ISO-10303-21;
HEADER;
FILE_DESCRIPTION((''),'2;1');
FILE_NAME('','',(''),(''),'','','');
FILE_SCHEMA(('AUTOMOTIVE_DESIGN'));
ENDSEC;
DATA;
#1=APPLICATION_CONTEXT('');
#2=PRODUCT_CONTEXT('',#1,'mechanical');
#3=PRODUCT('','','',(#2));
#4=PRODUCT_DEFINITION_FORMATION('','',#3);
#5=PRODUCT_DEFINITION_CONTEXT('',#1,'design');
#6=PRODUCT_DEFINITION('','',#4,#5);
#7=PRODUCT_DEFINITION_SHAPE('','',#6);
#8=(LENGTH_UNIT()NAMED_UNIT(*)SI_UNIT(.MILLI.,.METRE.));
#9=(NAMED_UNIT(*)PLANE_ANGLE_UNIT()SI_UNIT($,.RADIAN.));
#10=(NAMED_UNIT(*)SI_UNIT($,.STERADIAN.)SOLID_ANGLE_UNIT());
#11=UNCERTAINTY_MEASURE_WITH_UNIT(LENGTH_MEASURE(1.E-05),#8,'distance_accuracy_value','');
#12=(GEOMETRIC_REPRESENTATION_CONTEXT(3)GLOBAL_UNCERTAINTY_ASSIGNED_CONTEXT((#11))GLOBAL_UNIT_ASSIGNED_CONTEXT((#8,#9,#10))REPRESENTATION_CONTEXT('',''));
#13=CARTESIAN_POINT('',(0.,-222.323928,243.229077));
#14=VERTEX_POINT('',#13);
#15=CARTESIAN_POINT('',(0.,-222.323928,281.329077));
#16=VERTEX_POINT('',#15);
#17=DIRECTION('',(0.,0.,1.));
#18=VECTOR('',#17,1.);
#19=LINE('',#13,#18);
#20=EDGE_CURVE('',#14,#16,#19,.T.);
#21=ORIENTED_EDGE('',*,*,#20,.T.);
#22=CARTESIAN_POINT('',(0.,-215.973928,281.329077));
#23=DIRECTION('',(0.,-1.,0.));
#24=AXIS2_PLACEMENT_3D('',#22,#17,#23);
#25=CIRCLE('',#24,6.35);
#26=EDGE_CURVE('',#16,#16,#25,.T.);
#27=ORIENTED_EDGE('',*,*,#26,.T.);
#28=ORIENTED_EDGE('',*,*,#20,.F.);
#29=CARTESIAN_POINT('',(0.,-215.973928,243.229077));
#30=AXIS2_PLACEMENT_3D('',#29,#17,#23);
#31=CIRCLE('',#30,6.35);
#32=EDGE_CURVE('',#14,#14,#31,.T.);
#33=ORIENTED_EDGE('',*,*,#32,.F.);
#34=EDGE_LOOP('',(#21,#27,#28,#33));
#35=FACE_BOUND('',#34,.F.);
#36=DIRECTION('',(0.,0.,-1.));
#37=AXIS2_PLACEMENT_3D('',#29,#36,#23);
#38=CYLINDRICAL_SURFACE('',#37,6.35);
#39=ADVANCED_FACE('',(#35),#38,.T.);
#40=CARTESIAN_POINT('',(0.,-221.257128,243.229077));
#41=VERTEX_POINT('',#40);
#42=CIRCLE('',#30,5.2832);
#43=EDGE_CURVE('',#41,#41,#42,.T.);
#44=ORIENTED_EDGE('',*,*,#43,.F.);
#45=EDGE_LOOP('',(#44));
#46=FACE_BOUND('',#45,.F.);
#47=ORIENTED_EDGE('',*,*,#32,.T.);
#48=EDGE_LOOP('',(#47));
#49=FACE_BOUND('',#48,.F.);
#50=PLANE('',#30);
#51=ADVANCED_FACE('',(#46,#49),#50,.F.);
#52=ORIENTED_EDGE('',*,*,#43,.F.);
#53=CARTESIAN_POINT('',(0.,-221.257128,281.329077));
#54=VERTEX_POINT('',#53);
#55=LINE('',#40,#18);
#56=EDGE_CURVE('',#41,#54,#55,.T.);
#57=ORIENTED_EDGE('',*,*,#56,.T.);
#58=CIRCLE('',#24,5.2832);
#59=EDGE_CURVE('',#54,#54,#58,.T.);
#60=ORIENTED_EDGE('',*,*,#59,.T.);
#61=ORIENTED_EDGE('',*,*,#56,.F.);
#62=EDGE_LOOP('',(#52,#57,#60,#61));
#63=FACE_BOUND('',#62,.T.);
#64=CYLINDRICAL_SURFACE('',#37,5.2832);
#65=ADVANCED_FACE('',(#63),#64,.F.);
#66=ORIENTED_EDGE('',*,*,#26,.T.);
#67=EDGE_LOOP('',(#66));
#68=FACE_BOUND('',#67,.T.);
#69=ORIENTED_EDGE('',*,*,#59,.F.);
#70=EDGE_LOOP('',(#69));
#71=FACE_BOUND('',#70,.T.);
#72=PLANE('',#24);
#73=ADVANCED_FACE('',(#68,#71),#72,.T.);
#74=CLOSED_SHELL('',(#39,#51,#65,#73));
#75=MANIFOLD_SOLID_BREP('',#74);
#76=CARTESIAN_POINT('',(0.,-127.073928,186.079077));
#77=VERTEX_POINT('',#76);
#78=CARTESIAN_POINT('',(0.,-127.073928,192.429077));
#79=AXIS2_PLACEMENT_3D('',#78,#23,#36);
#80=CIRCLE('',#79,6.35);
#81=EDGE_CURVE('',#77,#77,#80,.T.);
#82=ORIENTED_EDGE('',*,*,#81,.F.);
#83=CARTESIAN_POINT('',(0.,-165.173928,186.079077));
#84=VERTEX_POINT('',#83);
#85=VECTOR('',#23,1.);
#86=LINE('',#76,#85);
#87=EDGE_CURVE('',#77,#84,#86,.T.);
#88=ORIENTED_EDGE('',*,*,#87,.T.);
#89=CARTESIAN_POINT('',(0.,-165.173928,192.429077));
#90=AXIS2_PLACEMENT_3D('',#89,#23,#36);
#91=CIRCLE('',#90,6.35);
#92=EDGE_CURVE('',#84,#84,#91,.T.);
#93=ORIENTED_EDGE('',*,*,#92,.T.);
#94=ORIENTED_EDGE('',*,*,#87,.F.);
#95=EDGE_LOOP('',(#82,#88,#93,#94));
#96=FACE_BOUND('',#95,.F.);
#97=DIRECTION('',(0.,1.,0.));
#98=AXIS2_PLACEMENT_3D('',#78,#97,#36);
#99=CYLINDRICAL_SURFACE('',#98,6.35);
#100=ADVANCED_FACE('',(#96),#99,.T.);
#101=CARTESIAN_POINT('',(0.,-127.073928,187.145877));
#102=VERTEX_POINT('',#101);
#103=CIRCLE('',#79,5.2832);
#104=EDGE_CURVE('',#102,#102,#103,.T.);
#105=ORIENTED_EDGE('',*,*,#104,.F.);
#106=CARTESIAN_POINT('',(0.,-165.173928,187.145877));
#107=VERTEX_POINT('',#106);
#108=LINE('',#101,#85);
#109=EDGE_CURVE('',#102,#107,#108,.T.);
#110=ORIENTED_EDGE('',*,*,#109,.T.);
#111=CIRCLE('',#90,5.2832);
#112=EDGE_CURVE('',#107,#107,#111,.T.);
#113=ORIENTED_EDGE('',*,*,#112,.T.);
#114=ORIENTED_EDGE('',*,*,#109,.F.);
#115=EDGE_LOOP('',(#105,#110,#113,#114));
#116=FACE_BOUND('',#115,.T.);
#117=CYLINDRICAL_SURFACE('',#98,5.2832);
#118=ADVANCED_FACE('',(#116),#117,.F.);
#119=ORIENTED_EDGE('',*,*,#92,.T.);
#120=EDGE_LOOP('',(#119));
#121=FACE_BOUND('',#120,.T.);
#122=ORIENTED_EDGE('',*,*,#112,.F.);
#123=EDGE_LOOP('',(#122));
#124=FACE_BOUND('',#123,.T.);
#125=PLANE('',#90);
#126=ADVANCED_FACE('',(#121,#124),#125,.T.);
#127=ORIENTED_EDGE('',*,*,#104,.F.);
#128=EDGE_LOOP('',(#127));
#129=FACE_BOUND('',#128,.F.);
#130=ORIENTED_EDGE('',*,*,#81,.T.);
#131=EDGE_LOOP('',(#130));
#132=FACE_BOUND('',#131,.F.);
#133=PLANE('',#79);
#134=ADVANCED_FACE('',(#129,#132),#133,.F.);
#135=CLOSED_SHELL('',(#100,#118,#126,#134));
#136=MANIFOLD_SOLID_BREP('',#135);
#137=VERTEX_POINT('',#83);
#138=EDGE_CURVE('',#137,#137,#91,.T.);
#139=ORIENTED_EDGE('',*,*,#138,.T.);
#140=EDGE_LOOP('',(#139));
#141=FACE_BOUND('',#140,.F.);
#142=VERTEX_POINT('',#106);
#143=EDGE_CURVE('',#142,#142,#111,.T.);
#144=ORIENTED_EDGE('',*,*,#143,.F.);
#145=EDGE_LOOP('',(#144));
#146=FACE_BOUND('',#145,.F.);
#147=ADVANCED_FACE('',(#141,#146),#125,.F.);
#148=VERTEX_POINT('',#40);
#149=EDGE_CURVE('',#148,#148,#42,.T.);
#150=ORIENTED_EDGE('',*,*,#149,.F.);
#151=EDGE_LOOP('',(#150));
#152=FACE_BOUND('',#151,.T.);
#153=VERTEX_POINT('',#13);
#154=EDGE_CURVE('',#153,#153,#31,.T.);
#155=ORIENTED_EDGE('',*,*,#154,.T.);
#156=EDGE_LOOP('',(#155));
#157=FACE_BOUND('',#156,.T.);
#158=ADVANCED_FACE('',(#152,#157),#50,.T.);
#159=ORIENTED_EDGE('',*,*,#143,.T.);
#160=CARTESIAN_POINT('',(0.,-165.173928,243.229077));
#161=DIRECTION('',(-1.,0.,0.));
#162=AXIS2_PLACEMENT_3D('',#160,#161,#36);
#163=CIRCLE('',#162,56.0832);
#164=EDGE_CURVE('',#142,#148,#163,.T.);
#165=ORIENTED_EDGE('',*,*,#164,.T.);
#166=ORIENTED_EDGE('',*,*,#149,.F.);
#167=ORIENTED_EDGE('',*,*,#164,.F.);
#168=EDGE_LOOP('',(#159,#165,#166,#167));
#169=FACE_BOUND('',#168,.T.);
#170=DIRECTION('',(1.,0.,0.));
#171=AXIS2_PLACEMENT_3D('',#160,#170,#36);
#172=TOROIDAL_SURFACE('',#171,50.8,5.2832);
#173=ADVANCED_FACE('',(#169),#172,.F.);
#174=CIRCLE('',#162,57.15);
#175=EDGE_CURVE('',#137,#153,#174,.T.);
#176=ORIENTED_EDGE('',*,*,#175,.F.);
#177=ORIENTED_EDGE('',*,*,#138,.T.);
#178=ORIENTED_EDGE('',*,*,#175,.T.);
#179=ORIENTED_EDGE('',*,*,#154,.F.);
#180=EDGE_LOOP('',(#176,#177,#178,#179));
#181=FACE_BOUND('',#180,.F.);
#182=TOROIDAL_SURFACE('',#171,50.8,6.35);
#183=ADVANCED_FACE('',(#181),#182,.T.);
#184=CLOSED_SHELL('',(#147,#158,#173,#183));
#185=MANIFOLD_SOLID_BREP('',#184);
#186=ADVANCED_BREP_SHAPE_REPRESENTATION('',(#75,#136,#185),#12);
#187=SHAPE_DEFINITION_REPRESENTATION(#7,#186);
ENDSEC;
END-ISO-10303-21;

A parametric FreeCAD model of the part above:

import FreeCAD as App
import Part
import Sketcher
Q = App.Units.Quantity

doc = App.newDocument("Part")
body = doc.addObject("PartDesign::Body", "Body")

sketch1 = doc.addObject("Sketcher::SketchObject", "Sketch")
body.addObject(sketch1)
sketch1.AttachmentSupport = (doc.XZ_Plane, [""])
sketch1.MapMode = "FlatFace"
sketch1.AttachmentOffset = App.Placement(App.Vector(0, 0, 127.073928), App.Rotation())
sketch1.addGeometry(Part.Circle(App.Vector(0, 192.429077, 0), App.Vector(0, 0, 1), 6.35), False)
sketch1.addGeometry(Part.Circle(App.Vector(0, 192.429077, 0), App.Vector(0, 0, 1), 5.2832), False)
sketch1.addConstraint(Sketcher.Constraint("Coincident", 1, 3, 0, 3))
sketch1.addConstraint(Sketcher.Constraint("PointOnObject", 0, 3, -2))
sketch1.addConstraint(Sketcher.Constraint("Diameter", 0, Q("0.5 in")))
sketch1.addConstraint(Sketcher.Constraint("Diameter", 1, Q("0.416 in")))
sketch1.addConstraint(Sketcher.Constraint("DistanceY", -1, 1, 0, 3, Q("192.429077 mm")))
pad1 = doc.addObject("PartDesign::Pad", "Pad")
body.addObject(pad1)
pad1.Profile = sketch1
pad1.Length = Q("1.5 in")
body2 = doc.addObject("PartDesign::Body", "Body001")

sketch2 = doc.addObject("Sketcher::SketchObject", "Sketch001")
body2.addObject(sketch2)
sketch2.AttachmentSupport = (doc.getObject("XZ_Plane001"), [""])
sketch2.MapMode = "FlatFace"
sketch2.AttachmentOffset = App.Placement(App.Vector(0, 0, 165.173928), App.Rotation())
sketch2.addGeometry(Part.Circle(App.Vector(0, 192.429077, 0), App.Vector(0, 0, 1), 6.35), False)
sketch2.addGeometry(Part.Circle(App.Vector(0, 192.429077, 0), App.Vector(0, 0, 1), 5.2832), False)
sketch2.addGeometry(Part.LineSegment(App.Vector(0, 243.229077, 0), App.Vector(-10, 243.229077, 0)), True)
sketch2.addConstraint(Sketcher.Constraint("Horizontal", 2))
sketch2.addConstraint(Sketcher.Constraint("Coincident", 1, 3, 0, 3))
sketch2.addConstraint(Sketcher.Constraint("PointOnObject", 0, 3, -2))
sketch2.addConstraint(Sketcher.Constraint("PointOnObject", 2, 1, -2))
sketch2.addConstraint(Sketcher.Constraint("Diameter", 0, Q("0.5 in")))
sketch2.addConstraint(Sketcher.Constraint("Diameter", 1, Q("0.416 in")))
sketch2.addConstraint(Sketcher.Constraint("DistanceY", 0, 3, 2, 1, Q("2 in")))
sketch2.addConstraint(Sketcher.Constraint("DistanceX", 2, 2, 2, 1, Q("10 mm")))
sketch2.addConstraint(Sketcher.Constraint("DistanceY", -1, 1, 0, 3, Q("192.429077 mm")))
revolution = doc.addObject("PartDesign::Revolution", "Revolution")
body2.addObject(revolution)
revolution.Profile = sketch2
revolution.ReferenceAxis = (sketch2, ["Axis0"])
revolution.Angle = 90
body3 = doc.addObject("PartDesign::Body", "Body002")

sketch3 = doc.addObject("Sketcher::SketchObject", "Sketch002")
body3.addObject(sketch3)
sketch3.AttachmentSupport = (doc.getObject("XY_Plane002"), [""])
sketch3.MapMode = "FlatFace"
sketch3.AttachmentOffset = App.Placement(App.Vector(0, 0, 243.229077), App.Rotation())
sketch3.addGeometry(Part.Circle(App.Vector(0, -215.973928, 0), App.Vector(0, 0, 1), 6.35), False)
sketch3.addGeometry(Part.Circle(App.Vector(0, -215.973928, 0), App.Vector(0, 0, 1), 5.2832), False)
sketch3.addConstraint(Sketcher.Constraint("Coincident", 1, 3, 0, 3))
sketch3.addConstraint(Sketcher.Constraint("PointOnObject", 0, 3, -2))
sketch3.addConstraint(Sketcher.Constraint("Diameter", 0, Q("0.5 in")))
sketch3.addConstraint(Sketcher.Constraint("Diameter", 1, Q("0.416 in")))
sketch3.addConstraint(Sketcher.Constraint("DistanceY", 0, 3, -1, 1, Q("215.973928 mm")))
pad2 = doc.addObject("PartDesign::Pad", "Pad001")
body3.addObject(pad2)
pad2.Profile = sketch3
pad2.Length = Q("1.5 in")

doc.recompute()
